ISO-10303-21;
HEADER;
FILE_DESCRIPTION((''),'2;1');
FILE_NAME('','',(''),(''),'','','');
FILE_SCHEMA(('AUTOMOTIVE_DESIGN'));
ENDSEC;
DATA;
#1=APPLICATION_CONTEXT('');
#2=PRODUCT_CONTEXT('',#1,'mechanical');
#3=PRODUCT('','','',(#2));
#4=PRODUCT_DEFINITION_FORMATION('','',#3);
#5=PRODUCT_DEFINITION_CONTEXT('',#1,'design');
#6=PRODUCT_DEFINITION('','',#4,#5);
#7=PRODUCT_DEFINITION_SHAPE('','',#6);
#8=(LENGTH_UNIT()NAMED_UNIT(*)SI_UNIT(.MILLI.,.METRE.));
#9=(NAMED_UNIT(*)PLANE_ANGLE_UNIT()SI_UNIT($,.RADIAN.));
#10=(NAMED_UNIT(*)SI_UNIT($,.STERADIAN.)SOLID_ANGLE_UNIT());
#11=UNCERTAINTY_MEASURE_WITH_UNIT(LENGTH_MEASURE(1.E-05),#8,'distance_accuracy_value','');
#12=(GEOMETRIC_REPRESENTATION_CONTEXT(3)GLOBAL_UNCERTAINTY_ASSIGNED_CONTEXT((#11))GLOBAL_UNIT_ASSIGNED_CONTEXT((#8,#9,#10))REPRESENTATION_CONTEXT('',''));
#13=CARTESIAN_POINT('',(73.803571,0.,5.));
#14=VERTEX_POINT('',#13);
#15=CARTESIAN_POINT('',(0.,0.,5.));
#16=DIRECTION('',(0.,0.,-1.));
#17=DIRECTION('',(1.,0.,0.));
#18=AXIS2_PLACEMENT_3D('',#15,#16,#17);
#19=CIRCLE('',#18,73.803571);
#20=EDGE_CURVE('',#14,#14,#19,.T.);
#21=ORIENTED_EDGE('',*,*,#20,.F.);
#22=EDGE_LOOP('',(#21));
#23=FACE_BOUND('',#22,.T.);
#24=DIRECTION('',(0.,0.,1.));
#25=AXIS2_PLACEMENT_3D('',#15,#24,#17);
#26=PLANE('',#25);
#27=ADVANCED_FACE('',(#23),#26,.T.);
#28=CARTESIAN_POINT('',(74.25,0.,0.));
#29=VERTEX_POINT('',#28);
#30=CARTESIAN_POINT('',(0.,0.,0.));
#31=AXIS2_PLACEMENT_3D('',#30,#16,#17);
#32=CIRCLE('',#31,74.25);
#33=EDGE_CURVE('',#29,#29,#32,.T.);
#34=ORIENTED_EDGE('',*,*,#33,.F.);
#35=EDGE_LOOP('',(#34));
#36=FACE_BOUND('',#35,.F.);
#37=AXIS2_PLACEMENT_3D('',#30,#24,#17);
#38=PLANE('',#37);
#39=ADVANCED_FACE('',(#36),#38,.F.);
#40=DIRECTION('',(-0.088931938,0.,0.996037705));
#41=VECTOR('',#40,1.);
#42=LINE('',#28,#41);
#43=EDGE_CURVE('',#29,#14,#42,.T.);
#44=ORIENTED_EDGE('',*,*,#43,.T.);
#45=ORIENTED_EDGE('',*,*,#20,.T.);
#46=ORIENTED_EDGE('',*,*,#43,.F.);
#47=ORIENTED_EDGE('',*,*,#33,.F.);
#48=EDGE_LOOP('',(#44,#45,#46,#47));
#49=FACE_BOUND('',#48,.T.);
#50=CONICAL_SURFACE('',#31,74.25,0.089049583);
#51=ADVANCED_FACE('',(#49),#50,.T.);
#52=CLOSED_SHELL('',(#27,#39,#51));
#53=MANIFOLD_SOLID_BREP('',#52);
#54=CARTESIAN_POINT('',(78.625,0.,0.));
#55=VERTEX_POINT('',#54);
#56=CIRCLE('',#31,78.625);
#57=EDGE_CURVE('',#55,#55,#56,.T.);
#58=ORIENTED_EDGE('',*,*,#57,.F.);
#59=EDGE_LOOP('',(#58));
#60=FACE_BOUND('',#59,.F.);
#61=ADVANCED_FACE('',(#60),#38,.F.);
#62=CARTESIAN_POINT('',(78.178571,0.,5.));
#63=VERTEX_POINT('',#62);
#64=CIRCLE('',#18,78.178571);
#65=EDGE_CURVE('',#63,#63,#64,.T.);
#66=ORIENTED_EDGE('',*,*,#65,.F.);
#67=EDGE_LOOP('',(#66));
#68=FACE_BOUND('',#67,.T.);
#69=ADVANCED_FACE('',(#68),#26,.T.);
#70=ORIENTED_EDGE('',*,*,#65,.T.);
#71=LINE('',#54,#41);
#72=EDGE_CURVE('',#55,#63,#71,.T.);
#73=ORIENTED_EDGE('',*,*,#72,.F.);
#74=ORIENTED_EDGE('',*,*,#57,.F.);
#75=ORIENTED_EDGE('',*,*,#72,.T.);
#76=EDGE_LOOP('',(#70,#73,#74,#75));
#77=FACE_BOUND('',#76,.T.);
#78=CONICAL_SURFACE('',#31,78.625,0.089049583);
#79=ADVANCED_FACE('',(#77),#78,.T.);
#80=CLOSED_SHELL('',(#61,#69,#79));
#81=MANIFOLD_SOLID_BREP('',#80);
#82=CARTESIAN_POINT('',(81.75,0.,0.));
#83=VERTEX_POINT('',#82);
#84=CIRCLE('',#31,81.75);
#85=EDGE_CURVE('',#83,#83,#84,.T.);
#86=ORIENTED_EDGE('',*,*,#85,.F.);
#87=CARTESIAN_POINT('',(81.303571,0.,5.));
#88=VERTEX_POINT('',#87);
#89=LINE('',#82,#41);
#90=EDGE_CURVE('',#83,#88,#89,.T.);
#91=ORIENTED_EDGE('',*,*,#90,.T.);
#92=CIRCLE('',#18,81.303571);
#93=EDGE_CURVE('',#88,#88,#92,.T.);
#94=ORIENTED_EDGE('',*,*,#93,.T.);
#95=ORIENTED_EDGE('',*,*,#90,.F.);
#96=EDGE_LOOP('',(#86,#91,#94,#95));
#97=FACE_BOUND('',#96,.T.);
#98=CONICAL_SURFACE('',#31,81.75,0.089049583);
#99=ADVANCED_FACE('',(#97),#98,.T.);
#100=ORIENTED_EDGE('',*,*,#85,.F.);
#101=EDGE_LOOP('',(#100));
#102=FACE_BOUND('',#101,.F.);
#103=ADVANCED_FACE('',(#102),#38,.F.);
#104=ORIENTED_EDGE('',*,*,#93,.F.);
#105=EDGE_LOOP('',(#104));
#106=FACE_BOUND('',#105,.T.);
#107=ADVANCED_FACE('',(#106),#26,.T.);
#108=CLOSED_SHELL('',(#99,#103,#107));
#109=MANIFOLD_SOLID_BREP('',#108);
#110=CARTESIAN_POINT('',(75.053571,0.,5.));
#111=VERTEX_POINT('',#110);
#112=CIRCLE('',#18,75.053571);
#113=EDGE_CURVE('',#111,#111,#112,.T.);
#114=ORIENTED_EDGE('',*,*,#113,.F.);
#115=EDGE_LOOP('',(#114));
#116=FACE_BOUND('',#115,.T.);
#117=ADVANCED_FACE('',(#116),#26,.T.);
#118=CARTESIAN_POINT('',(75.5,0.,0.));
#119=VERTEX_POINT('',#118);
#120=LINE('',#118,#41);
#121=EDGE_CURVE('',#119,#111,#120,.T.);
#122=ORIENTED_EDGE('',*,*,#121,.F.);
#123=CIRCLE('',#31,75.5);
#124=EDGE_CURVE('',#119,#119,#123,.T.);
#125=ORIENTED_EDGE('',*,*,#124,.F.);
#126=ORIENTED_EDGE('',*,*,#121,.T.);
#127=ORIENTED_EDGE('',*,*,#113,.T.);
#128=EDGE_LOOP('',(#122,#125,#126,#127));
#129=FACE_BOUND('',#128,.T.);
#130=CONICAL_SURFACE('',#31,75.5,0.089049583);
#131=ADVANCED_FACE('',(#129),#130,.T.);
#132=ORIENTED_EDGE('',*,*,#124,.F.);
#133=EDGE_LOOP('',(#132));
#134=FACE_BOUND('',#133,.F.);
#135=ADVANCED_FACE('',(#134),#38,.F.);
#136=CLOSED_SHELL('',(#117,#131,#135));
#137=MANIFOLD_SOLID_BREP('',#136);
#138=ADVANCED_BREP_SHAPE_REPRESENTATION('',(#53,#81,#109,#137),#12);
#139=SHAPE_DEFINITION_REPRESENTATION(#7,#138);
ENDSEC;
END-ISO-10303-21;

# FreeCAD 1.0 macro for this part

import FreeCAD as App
import Part
import Sketcher
Q = App.Units.Quantity

doc = App.newDocument("Part")
body = doc.addObject("PartDesign::Body", "Body")

# Sketch on XY plane
sketch1 = body.newObject("Sketcher::SketchObject", "Sketch")
sketch1.AttachmentSupport = (doc.getObject("XY_Plane"), [""])
sketch1.MapMode = "FlatFace"
sketch1.addGeometry(Part.Circle(App.Vector(0, 0, 0), App.Vector(0, 0, 1), 82), False)
sketch1.addConstraint(Sketcher.Constraint("Coincident", 0, 3, -1, 1))
sketch1.addConstraint(Sketcher.Constraint("Diameter", 0, Q("163.5 mm")))
pad1 = body.newObject("PartDesign::Pad", "Pad")
pad1.Profile = sketch1
pad1.Length = 5
pad1.TaperAngle = -5.102165
body2 = doc.addObject("PartDesign::Body", "Body001")

# Sketch on XY plane
sketch2 = body2.newObject("Sketcher::SketchObject", "Sketch001")
sketch2.AttachmentSupport = (doc.getObject("XY_Plane001"), [""])
sketch2.MapMode = "FlatFace"
sketch2.addGeometry(Part.Circle(App.Vector(0, 0, 0), App.Vector(0, 0, 1), 79), False)
sketch2.addConstraint(Sketcher.Constraint("Coincident", 0, 3, -1, 1))
sketch2.addConstraint(Sketcher.Constraint("Diameter", 0, Q("157.25 mm")))
pad2 = body2.newObject("PartDesign::Pad", "Pad001")
pad2.Profile = sketch2
pad2.Length = 5
pad2.TaperAngle = -5.102165
body3 = doc.addObject("PartDesign::Body", "Body002")

# Sketch on XY plane
sketch3 = body3.newObject("Sketcher::SketchObject", "Sketch002")
sketch3.AttachmentSupport = (doc.getObject("XY_Plane002"), [""])
sketch3.MapMode = "FlatFace"
sketch3.addGeometry(Part.Circle(App.Vector(0, 0, 0), App.Vector(0, 0, 1), 76), False)
sketch3.addConstraint(Sketcher.Constraint("Coincident", 0, 3, -1, 1))
sketch3.addConstraint(Sketcher.Constraint("Diameter", 0, Q("151 mm")))
pad3 = body3.newObject("PartDesign::Pad", "Pad002")
pad3.Profile = sketch3
pad3.Length = 5
pad3.TaperAngle = -5.102165
body4 = doc.addObject("PartDesign::Body", "Body003")

# Sketch on XY plane
sketch4 = body4.newObject("Sketcher::SketchObject", "Sketch003")
sketch4.AttachmentSupport = (doc.getObject("XY_Plane003"), [""])
sketch4.MapMode = "FlatFace"
sketch4.addGeometry(Part.Circle(App.Vector(0, 0, 0), App.Vector(0, 0, 1), 74), False)
sketch4.addConstraint(Sketcher.Constraint("Coincident", 0, 3, -1, 1))
sketch4.addConstraint(Sketcher.Constraint("Diameter", 0, Q("148.5 mm")))
pad4 = body4.newObject("PartDesign::Pad", "Pad003")
pad4.Profile = sketch4
pad4.Length = 5
pad4.TaperAngle = -5.102165

doc.recompute()
